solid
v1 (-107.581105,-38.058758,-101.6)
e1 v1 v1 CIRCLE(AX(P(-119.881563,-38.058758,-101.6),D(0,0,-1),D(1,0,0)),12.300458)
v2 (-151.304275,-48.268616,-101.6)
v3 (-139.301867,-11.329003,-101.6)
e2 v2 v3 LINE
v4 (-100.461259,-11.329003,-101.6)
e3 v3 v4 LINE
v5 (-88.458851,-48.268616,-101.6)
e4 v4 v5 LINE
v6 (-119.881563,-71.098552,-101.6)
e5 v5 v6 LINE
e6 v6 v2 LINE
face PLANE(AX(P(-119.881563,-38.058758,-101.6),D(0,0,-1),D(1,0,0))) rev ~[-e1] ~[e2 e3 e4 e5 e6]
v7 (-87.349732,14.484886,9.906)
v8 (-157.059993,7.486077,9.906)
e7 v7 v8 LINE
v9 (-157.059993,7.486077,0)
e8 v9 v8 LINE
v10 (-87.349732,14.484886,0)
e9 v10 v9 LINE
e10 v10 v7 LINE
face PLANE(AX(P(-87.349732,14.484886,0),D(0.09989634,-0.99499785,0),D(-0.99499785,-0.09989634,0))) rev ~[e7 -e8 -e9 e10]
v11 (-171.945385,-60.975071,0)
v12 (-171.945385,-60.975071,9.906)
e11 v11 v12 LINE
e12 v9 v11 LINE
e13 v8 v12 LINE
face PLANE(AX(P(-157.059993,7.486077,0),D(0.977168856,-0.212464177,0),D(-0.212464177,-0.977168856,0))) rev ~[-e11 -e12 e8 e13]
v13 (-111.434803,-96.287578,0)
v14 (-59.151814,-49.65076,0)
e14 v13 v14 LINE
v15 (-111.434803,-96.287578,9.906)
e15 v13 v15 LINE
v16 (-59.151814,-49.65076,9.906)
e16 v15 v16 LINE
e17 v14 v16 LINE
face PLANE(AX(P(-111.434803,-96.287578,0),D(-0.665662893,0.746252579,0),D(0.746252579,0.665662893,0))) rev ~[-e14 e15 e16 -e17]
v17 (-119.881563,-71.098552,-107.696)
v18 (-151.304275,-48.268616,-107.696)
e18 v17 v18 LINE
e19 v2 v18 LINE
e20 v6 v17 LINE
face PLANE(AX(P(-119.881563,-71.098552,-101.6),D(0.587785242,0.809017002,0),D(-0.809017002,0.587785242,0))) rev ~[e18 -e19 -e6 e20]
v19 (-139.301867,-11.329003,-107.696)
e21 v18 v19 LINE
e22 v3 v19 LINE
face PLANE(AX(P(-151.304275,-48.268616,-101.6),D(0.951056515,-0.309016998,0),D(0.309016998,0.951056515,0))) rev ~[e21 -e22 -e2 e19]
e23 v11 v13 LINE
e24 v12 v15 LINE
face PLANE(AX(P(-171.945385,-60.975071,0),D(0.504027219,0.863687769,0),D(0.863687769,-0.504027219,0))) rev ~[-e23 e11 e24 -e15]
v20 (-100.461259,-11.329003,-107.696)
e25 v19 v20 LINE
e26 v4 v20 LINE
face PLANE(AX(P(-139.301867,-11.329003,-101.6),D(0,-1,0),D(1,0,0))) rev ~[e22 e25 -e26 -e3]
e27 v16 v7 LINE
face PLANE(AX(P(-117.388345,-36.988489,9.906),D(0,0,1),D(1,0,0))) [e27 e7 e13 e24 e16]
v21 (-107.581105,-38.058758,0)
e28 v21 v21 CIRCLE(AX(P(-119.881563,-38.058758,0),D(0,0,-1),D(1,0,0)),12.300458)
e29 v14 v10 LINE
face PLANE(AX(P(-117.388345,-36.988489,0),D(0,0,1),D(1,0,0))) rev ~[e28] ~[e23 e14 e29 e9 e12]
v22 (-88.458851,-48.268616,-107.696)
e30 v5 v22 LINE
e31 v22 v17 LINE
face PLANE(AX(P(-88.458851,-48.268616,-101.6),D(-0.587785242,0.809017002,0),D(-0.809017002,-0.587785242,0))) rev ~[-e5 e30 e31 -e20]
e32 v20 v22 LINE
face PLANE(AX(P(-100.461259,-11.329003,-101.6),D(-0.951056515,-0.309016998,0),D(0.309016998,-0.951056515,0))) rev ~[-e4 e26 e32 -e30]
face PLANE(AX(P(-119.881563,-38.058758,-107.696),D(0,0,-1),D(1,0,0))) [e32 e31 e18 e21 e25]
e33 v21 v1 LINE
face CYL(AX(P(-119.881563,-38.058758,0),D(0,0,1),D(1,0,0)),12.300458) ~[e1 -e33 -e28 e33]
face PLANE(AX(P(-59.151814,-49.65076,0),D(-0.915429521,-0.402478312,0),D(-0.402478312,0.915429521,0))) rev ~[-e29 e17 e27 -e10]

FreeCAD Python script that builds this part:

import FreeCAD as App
import Part
import Sketcher

V = App.Vector
Q = App.Units.Quantity

doc = App.newDocument("Part")
body = doc.addObject("PartDesign::Body", "Body")

sketch1 = doc.addObject("Sketcher::SketchObject", "Sketch")
body.addObject(sketch1)
sketch1.AttachmentSupport = (doc.XY_Plane, [""])
sketch1.MapMode = "FlatFace"
sketch1.addGeometry([
    Part.LineSegment(V(-87, 14, 0), V(-157, 7, 0)),
    Part.LineSegment(V(-157, 7, 0), V(-172, -61, 0)),
    Part.LineSegment(V(-172, -61, 0), V(-111, -96, 0)),
    Part.LineSegment(V(-111, -96, 0), V(-59, -50, 0)),
    Part.LineSegment(V(-59, -50, 0), V(-87, 14, 0)),
], False)
sketch1.addConstraint([
    Sketcher.Constraint("Coincident", 0, 2, 1, 1),
    Sketcher.Constraint("Coincident", 1, 2, 2, 1),
    Sketcher.Constraint("Coincident", 2, 2, 3, 1),
    Sketcher.Constraint("Coincident", 3, 2, 4, 1),
    Sketcher.Constraint("Coincident", 4, 2, 0, 1),
    Sketcher.Constraint("Equal", 0, 1),
    Sketcher.Constraint("Equal", 1, 2),
    Sketcher.Constraint("Equal", 2, 3),
    Sketcher.Constraint("Equal", 3, 4),
    Sketcher.Constraint("DistanceY", 1, 2, -1, 1, 60.975071),
    Sketcher.Constraint("DistanceY", 3, 2, -1, 1, 49.65076),
    Sketcher.Constraint("DistanceX", 1, 2, 0, 2, 14.885392),
    Sketcher.Constraint("DistanceX", 1, 2, 2, 2, 60.510582),
    Sketcher.Constraint("DistanceX", 2, 2, 3, 2, 52.282989),
    Sketcher.Constraint("DistanceX", 0, 2, -1, 1, 157.059993),
])
pad1 = doc.addObject("PartDesign::Pad", "Pad")
body.addObject(pad1)
pad1.Profile = sketch1
pad1.Length = Q("0.39 in")

sketch2 = doc.addObject("Sketcher::SketchObject", "Sketch001")
body.addObject(sketch2)
sketch2.AttachmentSupport = (doc.XY_Plane, [""])
sketch2.MapMode = "FlatFace"
sketch2.addGeometry(Part.Circle(V(-120, -38, 0), V(0, 0, 1), 12), False)
sketch2.addConstraint([
    Sketcher.Constraint("Diameter", 0, 24.600916),
    Sketcher.Constraint("DistanceX", 0, 3, -1, 1, 119.881563),
    Sketcher.Constraint("DistanceY", 0, 3, -1, 1, 38.058758),
])
pad2 = doc.addObject("PartDesign::Pad", "Pad001")
body.addObject(pad2)
pad2.Profile = sketch2
pad2.Length = Q("4 in")
pad2.Reversed = True

sketch3 = doc.addObject("Sketcher::SketchObject", "Sketch002")
body.addObject(sketch3)
sketch3.AttachmentSupport = (doc.XY_Plane, [""])
sketch3.MapMode = "FlatFace"
sketch3.AttachmentOffset = App.Placement(V(0, 0, -4 * 25.4), App.Rotation())
sketch3.addGeometry([
    Part.LineSegment(V(-139, -11, 0), V(-100, -11, 0)),
    Part.LineSegment(V(-100, -11, 0), V(-88, -48, 0)),
    Part.LineSegment(V(-88, -48, 0), V(-120, -71, 0)),
    Part.LineSegment(V(-120, -71, 0), V(-151, -48, 0)),
    Part.LineSegment(V(-151, -48, 0), V(-139, -11, 0)),
], False)
sketch3.addConstraint([
    Sketcher.Constraint("Coincident", 0, 2, 1, 1),
    Sketcher.Constraint("Coincident", 1, 2, 2, 1),
    Sketcher.Constraint("Coincident", 2, 2, 3, 1),
    Sketcher.Constraint("Coincident", 3, 2, 4, 1),
    Sketcher.Constraint("Coincident", 4, 2, 0, 1),
    Sketcher.Constraint("Horizontal", 0),
    Sketcher.Constraint("Horizontal", 1, 2, 3, 2),
    Sketcher.Constraint("Equal", 1, 2),
    Sketcher.Constraint("Equal", 2, 3),
    Sketcher.Constraint("Equal", 3, 4),
    Sketcher.Constraint("Angle", 1, Q("-72 deg")),
    Sketcher.Constraint("Angle", 2, Q("-144.000001 deg")),
    Sketcher.Constraint("DistanceX", 0, 1, 0, 2, 38.840608),
    Sketcher.Constraint("DistanceX", 0, 2, -1, 1, 100.461259),
    Sketcher.Constraint("DistanceY", 2, 2, -1, 1, 71.098552),
])
pad3 = doc.addObject("PartDesign::Pad", "Pad002")
body.addObject(pad3)
pad3.Profile = sketch3
pad3.Length = Q("0.24 in")
pad3.Reversed = True

doc.recompute()
